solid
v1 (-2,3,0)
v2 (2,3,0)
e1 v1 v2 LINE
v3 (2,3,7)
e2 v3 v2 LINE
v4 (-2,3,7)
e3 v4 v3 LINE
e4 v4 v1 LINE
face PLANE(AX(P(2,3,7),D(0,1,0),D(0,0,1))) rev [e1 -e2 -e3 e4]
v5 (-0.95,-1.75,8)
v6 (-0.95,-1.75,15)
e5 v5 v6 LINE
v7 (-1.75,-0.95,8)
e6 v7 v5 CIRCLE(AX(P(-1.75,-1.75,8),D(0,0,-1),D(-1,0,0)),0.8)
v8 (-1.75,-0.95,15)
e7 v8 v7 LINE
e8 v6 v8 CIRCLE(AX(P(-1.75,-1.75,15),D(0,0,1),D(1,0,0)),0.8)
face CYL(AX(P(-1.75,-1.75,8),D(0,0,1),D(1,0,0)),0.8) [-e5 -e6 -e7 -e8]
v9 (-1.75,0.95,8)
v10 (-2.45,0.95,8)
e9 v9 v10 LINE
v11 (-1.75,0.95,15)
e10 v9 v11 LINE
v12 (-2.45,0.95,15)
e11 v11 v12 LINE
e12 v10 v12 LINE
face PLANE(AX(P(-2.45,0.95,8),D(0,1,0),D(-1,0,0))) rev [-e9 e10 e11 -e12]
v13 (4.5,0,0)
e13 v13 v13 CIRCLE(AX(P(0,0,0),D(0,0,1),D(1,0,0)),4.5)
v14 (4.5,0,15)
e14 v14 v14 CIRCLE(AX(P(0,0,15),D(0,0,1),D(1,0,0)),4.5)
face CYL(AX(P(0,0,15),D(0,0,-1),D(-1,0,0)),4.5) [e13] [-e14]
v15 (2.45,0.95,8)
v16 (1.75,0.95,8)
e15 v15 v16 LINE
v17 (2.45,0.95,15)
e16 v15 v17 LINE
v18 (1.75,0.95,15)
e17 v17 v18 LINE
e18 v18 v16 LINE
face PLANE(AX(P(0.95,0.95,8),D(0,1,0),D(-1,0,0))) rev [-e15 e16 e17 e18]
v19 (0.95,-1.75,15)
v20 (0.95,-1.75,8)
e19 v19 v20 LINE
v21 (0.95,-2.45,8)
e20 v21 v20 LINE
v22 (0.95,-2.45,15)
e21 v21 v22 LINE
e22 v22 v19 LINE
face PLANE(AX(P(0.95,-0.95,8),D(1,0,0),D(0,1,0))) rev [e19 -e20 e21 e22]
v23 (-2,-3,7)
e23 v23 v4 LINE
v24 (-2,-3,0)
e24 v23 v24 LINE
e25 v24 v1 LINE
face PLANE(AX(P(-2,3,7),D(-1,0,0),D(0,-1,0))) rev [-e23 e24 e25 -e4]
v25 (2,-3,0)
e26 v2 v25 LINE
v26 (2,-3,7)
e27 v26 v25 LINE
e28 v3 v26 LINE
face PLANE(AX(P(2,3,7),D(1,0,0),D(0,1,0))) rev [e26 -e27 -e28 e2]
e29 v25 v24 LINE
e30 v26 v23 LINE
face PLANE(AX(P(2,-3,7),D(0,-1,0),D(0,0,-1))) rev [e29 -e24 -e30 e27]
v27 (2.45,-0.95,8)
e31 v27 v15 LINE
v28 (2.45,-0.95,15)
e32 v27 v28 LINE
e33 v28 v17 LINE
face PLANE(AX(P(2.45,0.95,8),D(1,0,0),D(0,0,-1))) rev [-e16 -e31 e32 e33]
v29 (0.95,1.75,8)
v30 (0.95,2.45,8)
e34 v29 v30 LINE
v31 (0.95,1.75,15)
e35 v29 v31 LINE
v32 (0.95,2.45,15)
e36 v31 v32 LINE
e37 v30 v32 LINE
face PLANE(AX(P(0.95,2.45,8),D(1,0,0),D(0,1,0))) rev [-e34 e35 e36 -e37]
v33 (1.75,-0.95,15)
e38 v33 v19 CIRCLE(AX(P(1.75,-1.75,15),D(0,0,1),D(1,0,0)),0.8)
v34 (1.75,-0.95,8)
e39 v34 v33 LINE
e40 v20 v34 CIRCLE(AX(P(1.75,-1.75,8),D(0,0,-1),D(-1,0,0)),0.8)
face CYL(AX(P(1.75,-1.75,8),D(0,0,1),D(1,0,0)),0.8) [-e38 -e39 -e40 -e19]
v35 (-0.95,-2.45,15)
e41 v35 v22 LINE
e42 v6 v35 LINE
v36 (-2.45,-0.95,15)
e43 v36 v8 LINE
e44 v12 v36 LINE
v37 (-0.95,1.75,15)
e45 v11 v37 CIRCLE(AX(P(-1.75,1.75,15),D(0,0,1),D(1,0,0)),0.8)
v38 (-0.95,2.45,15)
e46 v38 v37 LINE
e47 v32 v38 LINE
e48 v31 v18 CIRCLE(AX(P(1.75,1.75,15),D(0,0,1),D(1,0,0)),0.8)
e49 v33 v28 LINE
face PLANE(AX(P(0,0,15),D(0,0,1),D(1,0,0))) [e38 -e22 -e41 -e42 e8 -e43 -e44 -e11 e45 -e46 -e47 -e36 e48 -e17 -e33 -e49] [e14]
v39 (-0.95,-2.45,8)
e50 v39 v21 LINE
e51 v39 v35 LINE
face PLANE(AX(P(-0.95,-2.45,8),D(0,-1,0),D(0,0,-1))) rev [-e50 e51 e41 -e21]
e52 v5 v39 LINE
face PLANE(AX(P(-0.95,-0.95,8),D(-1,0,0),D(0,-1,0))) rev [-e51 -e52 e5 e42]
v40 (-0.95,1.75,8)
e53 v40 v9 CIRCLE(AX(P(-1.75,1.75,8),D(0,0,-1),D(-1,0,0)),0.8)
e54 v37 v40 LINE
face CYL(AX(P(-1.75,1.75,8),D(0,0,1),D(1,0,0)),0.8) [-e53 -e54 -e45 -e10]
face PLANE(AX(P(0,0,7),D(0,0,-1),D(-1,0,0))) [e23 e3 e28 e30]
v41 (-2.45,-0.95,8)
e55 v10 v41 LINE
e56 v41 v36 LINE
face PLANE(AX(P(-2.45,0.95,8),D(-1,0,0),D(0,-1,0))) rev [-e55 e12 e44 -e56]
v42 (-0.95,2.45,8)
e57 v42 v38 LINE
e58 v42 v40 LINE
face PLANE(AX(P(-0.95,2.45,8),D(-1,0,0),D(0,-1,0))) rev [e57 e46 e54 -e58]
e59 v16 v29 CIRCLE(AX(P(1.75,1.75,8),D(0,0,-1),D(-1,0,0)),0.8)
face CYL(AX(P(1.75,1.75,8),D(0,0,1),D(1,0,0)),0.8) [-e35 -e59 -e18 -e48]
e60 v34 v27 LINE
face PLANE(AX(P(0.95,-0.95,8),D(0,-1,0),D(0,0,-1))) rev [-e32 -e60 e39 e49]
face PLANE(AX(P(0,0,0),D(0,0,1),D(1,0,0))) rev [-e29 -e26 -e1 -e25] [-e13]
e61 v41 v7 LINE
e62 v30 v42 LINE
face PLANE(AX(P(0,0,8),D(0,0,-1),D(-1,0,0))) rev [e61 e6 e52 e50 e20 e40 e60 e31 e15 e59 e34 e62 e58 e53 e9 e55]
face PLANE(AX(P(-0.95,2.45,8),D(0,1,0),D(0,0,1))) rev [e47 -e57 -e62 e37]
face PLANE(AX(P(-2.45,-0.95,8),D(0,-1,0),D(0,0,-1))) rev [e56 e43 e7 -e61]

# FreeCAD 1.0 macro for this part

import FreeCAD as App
import Part
import Sketcher
from FreeCAD import Vector


def edges_at(feature, points):
    """Names of the edges that pass closest to the given points."""
    edges = feature.Shape.Edges
    near = lambda p: min(range(len(edges)), key=lambda i: edges[i].distToShape(Part.Vertex(*p))[0])
    return sorted({f"Edge{near(p) + 1}" for p in points})

doc = App.newDocument("Part")
body = doc.addObject("PartDesign::Body", "Body")

sketch1 = doc.addObject("Sketcher::SketchObject", "Sketch")
body.addObject(sketch1)
sketch1.AttachmentSupport = (doc.XY_Plane, [""])
sketch1.MapMode = "FlatFace"
sketch1.addGeometry(Part.Circle(Vector(0, 0, 0), Vector(0, 0, 1), 4.5), False)
sketch1.addConstraint(Sketcher.Constraint("Coincident", 0, 3, -1, 1))
sketch1.addConstraint(Sketcher.Constraint("Diameter", 0, 9.0))
pad1 = doc.addObject("PartDesign::Pad", "Pad")
body.addObject(pad1)
pad1.Profile = sketch1
pad1.Length = 15

sketch2 = doc.addObject("Sketcher::SketchObject", "Sketch001")
body.addObject(sketch2)
sketch2.AttachmentSupport = (doc.XY_Plane, [""])
sketch2.MapMode = "FlatFace"
sketch2.addGeometry(Part.LineSegment(Vector(2, 3, 0), Vector(2, -3, 0)), False)
sketch2.addGeometry(Part.LineSegment(Vector(2, -3, 0), Vector(-2, -3, 0)), False)
sketch2.addGeometry(Part.LineSegment(Vector(-2, -3, 0), Vector(-2, 3, 0)), False)
sketch2.addGeometry(Part.LineSegment(Vector(-2, 3, 0), Vector(2, 3, 0)), False)
sketch2.addConstraint(Sketcher.Constraint("Coincident", 0, 2, 1, 1))
sketch2.addConstraint(Sketcher.Constraint("Coincident", 1, 2, 2, 1))
sketch2.addConstraint(Sketcher.Constraint("Coincident", 2, 2, 3, 1))
sketch2.addConstraint(Sketcher.Constraint("Coincident", 3, 2, 0, 1))
sketch2.addConstraint(Sketcher.Constraint("Vertical", 0))
sketch2.addConstraint(Sketcher.Constraint("Horizontal", 1))
sketch2.addConstraint(Sketcher.Constraint("Vertical", 2))
sketch2.addConstraint(Sketcher.Constraint("Horizontal", 3))
sketch2.addConstraint(Sketcher.Constraint("Symmetric", 0, 2, 2, 2, -1, 1))
sketch2.addConstraint(Sketcher.Constraint("DistanceX", 1, 2, 1, 1, 4.0))
sketch2.addConstraint(Sketcher.Constraint("DistanceY", 0, 2, 0, 1, 6.0))
pocket1 = doc.addObject("PartDesign::Pocket", "Pocket")
body.addObject(pocket1)
pocket1.Profile = sketch2
pocket1.Length = 7
pocket1.Reversed = True

sketch3 = doc.addObject("Sketcher::SketchObject", "Sketch002")
body.addObject(sketch3)
sketch3.AttachmentSupport = (doc.XY_Plane, [""])
sketch3.MapMode = "FlatFace"
sketch3.AttachmentOffset = App.Placement(Vector(0, 0, 15), App.Rotation())
sketch3.addGeometry(Part.LineSegment(Vector(-0.9, -0.9, 0), Vector(-0.9, -2.5, 0)), False)
sketch3.addGeometry(Part.LineSegment(Vector(-0.9, -2.5, 0), Vector(0.9, -2.5, 0)), False)
sketch3.addGeometry(Part.LineSegment(Vector(0.9, -2.5, 0), Vector(0.9, -0.9, 0)), False)
sketch3.addGeometry(Part.LineSegment(Vector(0.9, -0.9, 0), Vector(2.5, -0.9, 0)), False)
sketch3.addGeometry(Part.LineSegment(Vector(2.5, -0.9, 0), Vector(2.5, 0.9, 0)), False)
sketch3.addGeometry(Part.LineSegment(Vector(2.5, 0.9, 0), Vector(0.9, 0.9, 0)), False)
sketch3.addGeometry(Part.LineSegment(Vector(0.9, 0.9, 0), Vector(0.9, 2.5, 0)), False)
sketch3.addGeometry(Part.LineSegment(Vector(0.9, 2.5, 0), Vector(-0.9, 2.5, 0)), False)
sketch3.addGeometry(Part.LineSegment(Vector(-0.9, 2.5, 0), Vector(-0.9, 0.9, 0)), False)
sketch3.addGeometry(Part.LineSegment(Vector(-0.9, 0.9, 0), Vector(-2.5, 0.9, 0)), False)
sketch3.addGeometry(Part.LineSegment(Vector(-2.5, 0.9, 0), Vector(-2.5, -0.9, 0)), False)
sketch3.addGeometry(Part.LineSegment(Vector(-2.5, -0.9, 0), Vector(-0.9, -0.9, 0)), False)
sketch3.addConstraint(Sketcher.Constraint("Coincident", 0, 2, 1, 1))
sketch3.addConstraint(Sketcher.Constraint("Coincident", 1, 2, 2, 1))
sketch3.addConstraint(Sketcher.Constraint("Coincident", 2, 2, 3, 1))
sketch3.addConstraint(Sketcher.Constraint("Coincident", 3, 2, 4, 1))
sketch3.addConstraint(Sketcher.Constraint("Coincident", 4, 2, 5, 1))
sketch3.addConstraint(Sketcher.Constraint("Coincident", 5, 2, 6, 1))
sketch3.addConstraint(Sketcher.Constraint("Coincident", 6, 2, 7, 1))
sketch3.addConstraint(Sketcher.Constraint("Coincident", 7, 2, 8, 1))
sketch3.addConstraint(Sketcher.Constraint("Coincident", 8, 2, 9, 1))
sketch3.addConstraint(Sketcher.Constraint("Coincident", 9, 2, 10, 1))
sketch3.addConstraint(Sketcher.Constraint("Coincident", 10, 2, 11, 1))
sketch3.addConstraint(Sketcher.Constraint("Coincident", 11, 2, 0, 1))
sketch3.addConstraint(Sketcher.Constraint("Vertical", 0))
sketch3.addConstraint(Sketcher.Constraint("Horizontal", 1))
sketch3.addConstraint(Sketcher.Constraint("Vertical", 2))
sketch3.addConstraint(Sketcher.Constraint("Horizontal", 3))
sketch3.addConstraint(Sketcher.Constraint("Vertical", 4))
sketch3.addConstraint(Sketcher.Constraint("Horizontal", 5))
sketch3.addConstraint(Sketcher.Constraint("Vertical", 6))
sketch3.addConstraint(Sketcher.Constraint("Horizontal", 7))
sketch3.addConstraint(Sketcher.Constraint("Vertical", 8))
sketch3.addConstraint(Sketcher.Constraint("Horizontal", 9))
sketch3.addConstraint(Sketcher.Constraint("Vertical", 10))
sketch3.addConstraint(Sketcher.Constraint("Horizontal", 11))
sketch3.addConstraint(Sketcher.Constraint("Symmetric", 0, 2, 6, 2, -1, 1))
sketch3.addConstraint(Sketcher.Constraint("Symmetric", 2, 2, 8, 2, -1, 1))
sketch3.addConstraint(Sketcher.Constraint("Symmetric", 4, 2, 10, 2, -1, 1))
sketch3.addConstraint(Sketcher.Constraint("Symmetric", 5, 2, 8, 2, -2))
sketch3.addConstraint(Sketcher.Constraint("Equal", 11, 0))
sketch3.addConstraint(Sketcher.Constraint("Equal", 7, 4))
sketch3.addConstraint(Sketcher.Constraint("DistanceX", 1, 1, 1, 2, 1.9))
sketch3.addConstraint(Sketcher.Constraint("DistanceX", 3, 1, 3, 2, 1.5))
pocket2 = doc.addObject("PartDesign::Pocket", "Pocket001")
body.addObject(pocket2)
pocket2.Profile = sketch3
pocket2.Length = 7
doc.recompute()

fillet = doc.addObject("PartDesign::Fillet", "Fillet")
body.addObject(fillet)
fillet.Base = (pocket2, edges_at(pocket2, [
    (0.95, -0.95, 11.5),
    (-0.95, -0.95, 11.5),
    (-0.95, 0.95, 11.5),
    (0.95, 0.95, 11.5),
]))
fillet.Radius = 0.8

doc.recompute()
